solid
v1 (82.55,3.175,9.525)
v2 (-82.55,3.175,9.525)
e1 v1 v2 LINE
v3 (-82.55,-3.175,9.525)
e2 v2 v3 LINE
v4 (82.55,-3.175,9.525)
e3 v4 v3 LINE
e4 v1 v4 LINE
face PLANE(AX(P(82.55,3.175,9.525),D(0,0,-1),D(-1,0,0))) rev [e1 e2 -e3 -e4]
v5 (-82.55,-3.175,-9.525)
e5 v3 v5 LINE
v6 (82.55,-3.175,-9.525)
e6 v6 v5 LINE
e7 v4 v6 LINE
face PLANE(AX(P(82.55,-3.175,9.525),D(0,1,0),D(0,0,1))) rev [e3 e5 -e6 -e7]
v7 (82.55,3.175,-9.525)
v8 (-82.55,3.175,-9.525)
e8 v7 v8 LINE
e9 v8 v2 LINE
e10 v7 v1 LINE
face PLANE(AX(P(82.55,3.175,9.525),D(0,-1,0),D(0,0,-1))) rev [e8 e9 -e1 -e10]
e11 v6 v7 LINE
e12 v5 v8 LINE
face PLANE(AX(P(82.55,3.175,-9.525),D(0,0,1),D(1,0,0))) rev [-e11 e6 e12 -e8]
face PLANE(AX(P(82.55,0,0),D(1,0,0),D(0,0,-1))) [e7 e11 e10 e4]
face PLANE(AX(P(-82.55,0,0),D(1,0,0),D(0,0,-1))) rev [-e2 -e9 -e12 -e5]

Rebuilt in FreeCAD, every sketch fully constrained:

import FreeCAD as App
import Part
import Sketcher
Q = App.Units.Quantity


def add_polygon(sketch, points):
    """Adds a closed chain of lines whose ends are joined by coincident constraints."""
    first, n = sketch.GeometryCount, len(points)
    for a, b in zip(points, points[1:] + points[:1]):
        sketch.addGeometry(Part.LineSegment(App.Vector(*a, 0), App.Vector(*b, 0)), False)
    for i in range(n):
        sketch.addConstraint(Sketcher.Constraint("Coincident", first + i, 2, first + (i + 1) % n, 1))

doc = App.newDocument("Part")
body = doc.addObject("PartDesign::Body", "Body")

# Sketch on YZ plane
sketch1 = body.newObject("Sketcher::SketchObject", "Sketch")
sketch1.AttachmentSupport = (doc.getObject("YZ_Plane"), [""])
sketch1.MapMode = "FlatFace"
add_polygon(sketch1, [(3, 10), (-3, 10), (-3, -10), (3, -10)])  # lines 0-3
sketch1.addConstraint([
    Sketcher.Constraint("Horizontal", 0),
    Sketcher.Constraint("Vertical", 1),
    Sketcher.Constraint("Horizontal", 2),
    Sketcher.Constraint("Vertical", 3),
    Sketcher.Constraint("Symmetric", 0, 2, 2, 2, -1, 1),
    Sketcher.Constraint("DistanceX", 0, 2, 0, 1, Q("0.25 in")),
    Sketcher.Constraint("DistanceY", 1, 2, 1, 1, Q("0.75 in")),
])
pad1 = body.newObject("PartDesign::Pad", "Pad")
pad1.Profile = sketch1
pad1.Length = Q("6.5 in")
pad1.Midplane = True

doc.recompute()
